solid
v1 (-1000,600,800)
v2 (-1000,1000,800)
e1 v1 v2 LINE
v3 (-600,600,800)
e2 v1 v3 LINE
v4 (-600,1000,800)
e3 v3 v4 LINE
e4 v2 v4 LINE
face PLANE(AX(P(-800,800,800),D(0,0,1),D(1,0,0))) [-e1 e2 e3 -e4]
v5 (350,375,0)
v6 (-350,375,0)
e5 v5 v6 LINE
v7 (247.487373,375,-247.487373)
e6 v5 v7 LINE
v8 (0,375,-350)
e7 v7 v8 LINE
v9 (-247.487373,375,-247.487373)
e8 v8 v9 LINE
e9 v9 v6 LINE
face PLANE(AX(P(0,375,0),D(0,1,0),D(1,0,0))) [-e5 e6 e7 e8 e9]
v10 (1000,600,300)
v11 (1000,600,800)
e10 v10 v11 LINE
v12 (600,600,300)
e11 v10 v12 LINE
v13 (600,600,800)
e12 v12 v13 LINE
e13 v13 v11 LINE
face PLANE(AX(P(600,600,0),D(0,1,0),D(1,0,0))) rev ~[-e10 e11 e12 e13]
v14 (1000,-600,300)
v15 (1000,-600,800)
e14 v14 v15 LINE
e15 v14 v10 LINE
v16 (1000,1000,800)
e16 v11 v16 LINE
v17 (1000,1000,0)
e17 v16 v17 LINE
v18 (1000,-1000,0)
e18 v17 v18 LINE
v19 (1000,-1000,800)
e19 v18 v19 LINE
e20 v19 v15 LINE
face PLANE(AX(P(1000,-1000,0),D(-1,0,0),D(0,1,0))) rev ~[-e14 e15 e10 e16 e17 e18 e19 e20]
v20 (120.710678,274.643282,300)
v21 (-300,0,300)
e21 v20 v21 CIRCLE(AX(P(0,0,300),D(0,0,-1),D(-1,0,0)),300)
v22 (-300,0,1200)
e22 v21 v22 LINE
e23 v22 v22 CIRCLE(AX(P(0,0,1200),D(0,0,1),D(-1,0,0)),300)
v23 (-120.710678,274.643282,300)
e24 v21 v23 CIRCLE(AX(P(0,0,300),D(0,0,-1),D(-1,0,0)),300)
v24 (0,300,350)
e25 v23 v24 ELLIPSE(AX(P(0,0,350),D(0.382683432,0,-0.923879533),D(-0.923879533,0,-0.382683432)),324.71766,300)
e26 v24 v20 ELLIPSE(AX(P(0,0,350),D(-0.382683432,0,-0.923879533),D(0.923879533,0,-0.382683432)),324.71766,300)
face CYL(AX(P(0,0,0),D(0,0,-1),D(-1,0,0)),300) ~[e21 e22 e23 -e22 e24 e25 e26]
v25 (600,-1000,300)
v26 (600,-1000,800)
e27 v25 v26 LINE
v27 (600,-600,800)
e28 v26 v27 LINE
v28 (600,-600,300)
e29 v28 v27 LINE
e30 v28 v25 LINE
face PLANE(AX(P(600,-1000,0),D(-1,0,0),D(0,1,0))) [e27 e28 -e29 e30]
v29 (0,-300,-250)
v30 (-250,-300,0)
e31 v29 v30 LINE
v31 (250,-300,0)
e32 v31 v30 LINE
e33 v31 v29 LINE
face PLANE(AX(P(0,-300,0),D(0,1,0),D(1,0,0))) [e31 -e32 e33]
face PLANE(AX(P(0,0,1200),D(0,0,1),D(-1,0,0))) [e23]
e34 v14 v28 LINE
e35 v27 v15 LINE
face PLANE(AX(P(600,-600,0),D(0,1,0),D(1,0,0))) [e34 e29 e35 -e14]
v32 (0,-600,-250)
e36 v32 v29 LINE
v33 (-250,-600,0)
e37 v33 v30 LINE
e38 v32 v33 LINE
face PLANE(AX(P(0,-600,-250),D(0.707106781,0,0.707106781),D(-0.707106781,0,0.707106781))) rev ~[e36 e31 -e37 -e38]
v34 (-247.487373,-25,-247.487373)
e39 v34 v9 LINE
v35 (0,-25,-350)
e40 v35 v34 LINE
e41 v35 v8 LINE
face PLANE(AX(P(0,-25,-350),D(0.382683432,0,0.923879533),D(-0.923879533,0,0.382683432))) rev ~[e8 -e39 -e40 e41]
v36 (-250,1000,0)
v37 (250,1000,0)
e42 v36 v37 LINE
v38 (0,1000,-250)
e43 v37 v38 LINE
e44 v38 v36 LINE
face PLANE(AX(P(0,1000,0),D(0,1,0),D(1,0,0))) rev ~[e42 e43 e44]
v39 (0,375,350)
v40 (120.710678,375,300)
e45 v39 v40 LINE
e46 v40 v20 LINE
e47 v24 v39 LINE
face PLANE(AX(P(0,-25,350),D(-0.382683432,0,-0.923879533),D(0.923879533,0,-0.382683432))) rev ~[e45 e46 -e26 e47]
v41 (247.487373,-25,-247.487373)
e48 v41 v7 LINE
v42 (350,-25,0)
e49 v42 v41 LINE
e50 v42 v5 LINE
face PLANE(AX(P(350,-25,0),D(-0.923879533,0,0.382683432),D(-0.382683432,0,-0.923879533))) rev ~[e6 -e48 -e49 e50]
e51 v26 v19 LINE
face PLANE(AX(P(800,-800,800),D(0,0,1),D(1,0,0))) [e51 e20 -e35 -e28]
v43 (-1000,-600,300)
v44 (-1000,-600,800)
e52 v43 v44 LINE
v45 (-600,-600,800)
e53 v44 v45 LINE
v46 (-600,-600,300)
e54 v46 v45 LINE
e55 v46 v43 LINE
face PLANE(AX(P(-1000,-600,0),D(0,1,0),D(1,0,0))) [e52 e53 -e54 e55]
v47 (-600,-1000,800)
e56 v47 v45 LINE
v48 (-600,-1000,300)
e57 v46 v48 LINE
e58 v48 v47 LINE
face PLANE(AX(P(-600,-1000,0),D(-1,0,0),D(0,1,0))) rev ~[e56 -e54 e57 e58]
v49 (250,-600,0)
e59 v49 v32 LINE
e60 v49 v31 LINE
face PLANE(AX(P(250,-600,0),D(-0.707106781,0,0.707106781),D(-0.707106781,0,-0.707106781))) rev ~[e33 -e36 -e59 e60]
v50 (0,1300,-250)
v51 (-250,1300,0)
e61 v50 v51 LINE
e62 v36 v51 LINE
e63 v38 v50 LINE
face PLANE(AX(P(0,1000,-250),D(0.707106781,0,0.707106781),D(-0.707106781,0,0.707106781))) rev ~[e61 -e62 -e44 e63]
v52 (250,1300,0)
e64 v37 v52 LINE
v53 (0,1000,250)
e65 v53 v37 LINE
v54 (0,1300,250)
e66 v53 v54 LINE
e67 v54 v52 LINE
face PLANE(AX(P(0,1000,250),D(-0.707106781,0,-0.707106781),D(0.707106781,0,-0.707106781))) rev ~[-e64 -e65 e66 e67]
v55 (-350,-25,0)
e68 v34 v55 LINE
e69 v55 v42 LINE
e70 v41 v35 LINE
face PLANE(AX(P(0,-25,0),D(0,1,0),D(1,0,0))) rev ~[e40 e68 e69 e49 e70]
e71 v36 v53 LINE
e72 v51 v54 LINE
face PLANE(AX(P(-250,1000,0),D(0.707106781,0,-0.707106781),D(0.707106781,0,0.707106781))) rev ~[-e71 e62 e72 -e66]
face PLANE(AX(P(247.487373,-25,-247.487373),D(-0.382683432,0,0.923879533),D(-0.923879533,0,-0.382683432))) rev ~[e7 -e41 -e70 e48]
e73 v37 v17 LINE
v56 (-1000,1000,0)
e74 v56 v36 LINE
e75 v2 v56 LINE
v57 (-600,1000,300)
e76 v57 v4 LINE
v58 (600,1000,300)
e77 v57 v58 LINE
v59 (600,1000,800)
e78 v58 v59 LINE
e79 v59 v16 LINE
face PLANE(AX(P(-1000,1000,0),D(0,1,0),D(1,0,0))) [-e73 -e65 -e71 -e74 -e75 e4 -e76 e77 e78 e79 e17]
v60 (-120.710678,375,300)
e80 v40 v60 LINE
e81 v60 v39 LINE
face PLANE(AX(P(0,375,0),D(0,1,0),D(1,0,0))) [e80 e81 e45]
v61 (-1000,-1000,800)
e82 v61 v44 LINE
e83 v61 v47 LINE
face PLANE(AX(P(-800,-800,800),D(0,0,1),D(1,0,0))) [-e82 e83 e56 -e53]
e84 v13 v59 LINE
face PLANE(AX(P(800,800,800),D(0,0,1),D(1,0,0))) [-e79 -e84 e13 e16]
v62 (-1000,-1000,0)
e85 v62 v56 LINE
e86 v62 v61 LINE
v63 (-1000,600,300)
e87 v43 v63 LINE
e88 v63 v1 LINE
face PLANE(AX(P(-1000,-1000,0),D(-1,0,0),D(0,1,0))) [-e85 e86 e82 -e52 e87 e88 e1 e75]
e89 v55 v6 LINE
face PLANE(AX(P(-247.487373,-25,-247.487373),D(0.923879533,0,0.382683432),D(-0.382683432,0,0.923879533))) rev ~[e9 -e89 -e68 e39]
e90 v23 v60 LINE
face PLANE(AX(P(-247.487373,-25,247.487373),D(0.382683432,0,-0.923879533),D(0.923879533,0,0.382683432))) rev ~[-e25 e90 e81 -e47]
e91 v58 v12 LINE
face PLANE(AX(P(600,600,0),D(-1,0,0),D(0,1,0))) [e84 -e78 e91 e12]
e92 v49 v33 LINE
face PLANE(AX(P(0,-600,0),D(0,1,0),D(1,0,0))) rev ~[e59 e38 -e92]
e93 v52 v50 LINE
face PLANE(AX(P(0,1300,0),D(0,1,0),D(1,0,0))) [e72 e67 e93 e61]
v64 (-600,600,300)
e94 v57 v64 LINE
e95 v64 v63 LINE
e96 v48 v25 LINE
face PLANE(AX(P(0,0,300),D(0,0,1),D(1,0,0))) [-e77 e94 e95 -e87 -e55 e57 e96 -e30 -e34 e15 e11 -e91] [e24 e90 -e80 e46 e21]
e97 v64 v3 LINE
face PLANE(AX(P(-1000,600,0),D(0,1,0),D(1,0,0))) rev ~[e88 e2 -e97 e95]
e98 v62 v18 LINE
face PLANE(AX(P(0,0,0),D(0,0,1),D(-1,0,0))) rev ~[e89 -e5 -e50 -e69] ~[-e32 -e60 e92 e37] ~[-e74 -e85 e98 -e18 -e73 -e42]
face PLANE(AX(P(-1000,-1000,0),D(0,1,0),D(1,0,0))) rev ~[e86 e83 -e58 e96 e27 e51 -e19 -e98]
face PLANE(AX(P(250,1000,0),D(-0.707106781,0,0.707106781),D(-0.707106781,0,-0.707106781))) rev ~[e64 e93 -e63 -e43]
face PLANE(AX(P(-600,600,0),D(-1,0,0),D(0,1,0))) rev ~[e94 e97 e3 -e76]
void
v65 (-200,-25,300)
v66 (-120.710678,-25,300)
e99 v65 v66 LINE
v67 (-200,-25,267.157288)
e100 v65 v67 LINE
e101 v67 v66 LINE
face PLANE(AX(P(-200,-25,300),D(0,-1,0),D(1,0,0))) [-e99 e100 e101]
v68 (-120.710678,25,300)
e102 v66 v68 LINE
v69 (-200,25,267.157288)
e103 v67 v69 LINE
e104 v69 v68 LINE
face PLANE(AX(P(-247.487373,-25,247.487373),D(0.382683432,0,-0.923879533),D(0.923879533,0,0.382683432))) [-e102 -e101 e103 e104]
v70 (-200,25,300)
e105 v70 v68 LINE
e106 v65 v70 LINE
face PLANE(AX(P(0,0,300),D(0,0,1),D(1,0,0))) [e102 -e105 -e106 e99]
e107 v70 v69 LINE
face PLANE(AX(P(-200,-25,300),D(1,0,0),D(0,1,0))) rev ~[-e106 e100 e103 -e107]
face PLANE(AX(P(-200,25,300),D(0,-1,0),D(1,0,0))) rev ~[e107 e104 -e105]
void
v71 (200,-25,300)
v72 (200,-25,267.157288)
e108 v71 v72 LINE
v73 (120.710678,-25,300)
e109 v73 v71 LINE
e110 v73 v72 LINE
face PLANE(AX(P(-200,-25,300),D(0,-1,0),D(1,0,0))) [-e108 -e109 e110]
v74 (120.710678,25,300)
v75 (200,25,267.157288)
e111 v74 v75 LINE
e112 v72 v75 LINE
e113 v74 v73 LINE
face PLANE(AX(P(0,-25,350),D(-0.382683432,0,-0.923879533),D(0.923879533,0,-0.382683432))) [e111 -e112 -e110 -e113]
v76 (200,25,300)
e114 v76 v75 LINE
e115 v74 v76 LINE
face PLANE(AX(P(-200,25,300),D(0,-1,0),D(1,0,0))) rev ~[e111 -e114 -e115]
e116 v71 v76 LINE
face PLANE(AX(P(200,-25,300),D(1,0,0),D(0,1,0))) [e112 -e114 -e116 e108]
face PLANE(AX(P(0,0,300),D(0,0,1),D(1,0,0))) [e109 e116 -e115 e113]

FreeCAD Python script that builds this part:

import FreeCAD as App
import Part
import Sketcher

V = App.Vector
Q = App.Units.Quantity


def add_polygon(sketch, points):
    """Adds a closed chain of lines whose ends are joined by coincident constraints."""
    first, n = sketch.GeometryCount, len(points)
    for a, b in zip(points, points[1:] + points[:1]):
        sketch.addGeometry(Part.LineSegment(App.Vector(*a, 0), App.Vector(*b, 0)), False)
    for i in range(n):
        sketch.addConstraint(Sketcher.Constraint("Coincident", first + i, 2, first + (i + 1) % n, 1))

doc = App.newDocument("Part")
body = doc.addObject("PartDesign::Body", "Body")

# Sketch on XY plane
sketch1 = body.newObject("Sketcher::SketchObject", "Sketch")
sketch1.AttachmentSupport = (doc.getObject("XY_Plane"), [""])
sketch1.MapMode = "FlatFace"
add_polygon(sketch1, [(-1000, 1000), (-1000, -1000), (1000, -1000), (1000, 1000)])  # lines 0-3
sketch1.addConstraint([
    Sketcher.Constraint("Vertical", 0),
    Sketcher.Constraint("Horizontal", 1),
    Sketcher.Constraint("Vertical", 2),
    Sketcher.Constraint("Horizontal", 3),
    Sketcher.Constraint("Symmetric", 0, 2, 2, 2, -1, 1),
    Sketcher.Constraint("Equal", 3, 0),
    Sketcher.Constraint("DistanceX", 1, 1, 1, 2, Q("2000 mm")),
])
pad1 = body.newObject("PartDesign::Pad", "Pad")
pad1.Profile = sketch1
pad1.Length = 300

# Sketch on XY plane
sketch2 = body.newObject("Sketcher::SketchObject", "Sketch001")
sketch2.AttachmentSupport = (doc.getObject("XY_Plane"), [""])
sketch2.MapMode = "FlatFace"
add_polygon(sketch2, [(-1000, -600), (-1000, -1000), (-600, -1000), (-600, -600)])  # lines 0-3
sketch2.addConstraint([
    Sketcher.Constraint("Vertical", 0),
    Sketcher.Constraint("Horizontal", 1),
    Sketcher.Constraint("Vertical", 2),
    Sketcher.Constraint("Horizontal", 3),
    Sketcher.Constraint("Equal", 3, 0),
    Sketcher.Constraint("DistanceX", 1, 1, 1, 2, Q("400 mm")),
    Sketcher.Constraint("DistanceX", 0, 2, -1, 1, Q("1000 mm")),
    Sketcher.Constraint("DistanceY", 0, 2, -1, 1, Q("1000 mm")),
])
pad2 = body.newObject("PartDesign::Pad", "Pad001")
pad2.Profile = sketch2
pad2.Length = 800

# Sketch on XY plane
sketch3 = body.newObject("Sketcher::SketchObject", "Sketch002")
sketch3.AttachmentSupport = (doc.getObject("XY_Plane"), [""])
sketch3.MapMode = "FlatFace"
add_polygon(sketch3, [(600, -600), (600, -1000), (1000, -1000), (1000, -600)])  # lines 0-3
sketch3.addConstraint([
    Sketcher.Constraint("Vertical", 0),
    Sketcher.Constraint("Horizontal", 1),
    Sketcher.Constraint("Vertical", 2),
    Sketcher.Constraint("Horizontal", 3),
    Sketcher.Constraint("Equal", 3, 0),
    Sketcher.Constraint("DistanceX", 1, 1, 1, 2, Q("400 mm")),
    Sketcher.Constraint("DistanceX", -1, 1, 0, 2, Q("600 mm")),
    Sketcher.Constraint("DistanceY", 0, 2, -1, 1, Q("1000 mm")),
])
pad3 = body.newObject("PartDesign::Pad", "Pad002")
pad3.Profile = sketch3
pad3.Length = 800

# Sketch on XY plane
sketch4 = body.newObject("Sketcher::SketchObject", "Sketch003")
sketch4.AttachmentSupport = (doc.getObject("XY_Plane"), [""])
sketch4.MapMode = "FlatFace"
add_polygon(sketch4, [(-1000, 1000), (-1000, 600), (-600, 600), (-600, 1000)])  # lines 0-3
sketch4.addConstraint([
    Sketcher.Constraint("Vertical", 0),
    Sketcher.Constraint("Horizontal", 1),
    Sketcher.Constraint("Vertical", 2),
    Sketcher.Constraint("Horizontal", 3),
    Sketcher.Constraint("Equal", 3, 0),
    Sketcher.Constraint("DistanceX", 1, 1, 1, 2, Q("400 mm")),
    Sketcher.Constraint("DistanceX", 0, 2, -1, 1, Q("1000 mm")),
    Sketcher.Constraint("DistanceY", -1, 1, 0, 2, Q("600 mm")),
])
pad4 = body.newObject("PartDesign::Pad", "Pad003")
pad4.Profile = sketch4
pad4.Length = 800

# Sketch on XY plane
sketch5 = body.newObject("Sketcher::SketchObject", "Sketch004")
sketch5.AttachmentSupport = (doc.getObject("XY_Plane"), [""])
sketch5.MapMode = "FlatFace"
add_polygon(sketch5, [(600, 1000), (600, 600), (1000, 600), (1000, 1000)])  # lines 0-3
sketch5.addConstraint([
    Sketcher.Constraint("Vertical", 0),
    Sketcher.Constraint("Horizontal", 1),
    Sketcher.Constraint("Vertical", 2),
    Sketcher.Constraint("Horizontal", 3),
    Sketcher.Constraint("Equal", 3, 0),
    Sketcher.Constraint("DistanceX", 1, 1, 1, 2, Q("400 mm")),
    Sketcher.Constraint("DistanceX", -1, 1, 0, 2, Q("600 mm")),
    Sketcher.Constraint("DistanceY", -1, 1, 0, 2, Q("600 mm")),
])
pad5 = body.newObject("PartDesign::Pad", "Pad004")
pad5.Profile = sketch5
pad5.Length = 800

# Sketch on XY plane
sketch6 = body.newObject("Sketcher::SketchObject", "Sketch005")
sketch6.AttachmentSupport = (doc.getObject("XY_Plane"), [""])
sketch6.MapMode = "FlatFace"
sketch6.addGeometry(Part.Circle(V(0, 0, 0), V(0, 0, 1), 300), False)
sketch6.addConstraint([
    Sketcher.Constraint("Coincident", 0, 3, -1, 1),
    Sketcher.Constraint("Diameter", 0, Q("600 mm")),
])
pad6 = body.newObject("PartDesign::Pad", "Pad005")
pad6.Profile = sketch6
pad6.Length = 1200

# Sketch on XY plane
sketch7 = body.newObject("Sketcher::SketchObject", "Sketch006")
sketch7.AttachmentSupport = (doc.getObject("XY_Plane"), [""])
sketch7.MapMode = "FlatFace"
sketch7.AttachmentOffset = App.Placement(V(0, 0, 300), App.Rotation())
add_polygon(sketch7, [(-200, 25), (-200, -25), (200, -25), (200, 25)])  # lines 0-3
sketch7.addConstraint([
    Sketcher.Constraint("Vertical", 0),
    Sketcher.Constraint("Horizontal", 1),
    Sketcher.Constraint("Vertical", 2),
    Sketcher.Constraint("Horizontal", 3),
    Sketcher.Constraint("Symmetric", 0, 2, 2, 2, -1, 1),
    Sketcher.Constraint("DistanceX", 1, 1, 1, 2, Q("400 mm")),
    Sketcher.Constraint("DistanceY", 0, 2, 0, 1, Q("50 mm")),
])
pocket1 = body.newObject("PartDesign::Pocket", "Pocket")
pocket1.Profile = sketch7
pocket1.Type = "ThroughAll"

# Sketch on XZ plane
sketch8 = body.newObject("Sketcher::SketchObject", "Sketch007")
sketch8.AttachmentSupport = (doc.getObject("XZ_Plane"), [""])
sketch8.MapMode = "FlatFace"
sketch8.AttachmentOffset = App.Placement(V(0, 0, 600), App.Rotation())
add_polygon(sketch8, [(250, 0), (0, -250), (-250, 0), (0, 250)])  # lines 0-3
sketch8.addConstraint([
    Sketcher.Constraint("Symmetric", 0, 2, 2, 2, -1, 1),
    Sketcher.Constraint("Symmetric", 1, 2, 3, 2, -1, 1),
    Sketcher.Constraint("PointOnObject", 0, 2, -2),
    Sketcher.Constraint("PointOnObject", 1, 2, -1),
    Sketcher.Constraint("Perpendicular", 0, 1),
    Sketcher.Constraint("DistanceY", 0, 2, -1, 1, Q("250 mm")),
])
pad7 = body.newObject("PartDesign::Pad", "Pad006")
pad7.Profile = sketch8
pad7.Length = 300
pad7.Reversed = True

# Sketch on XZ plane
sketch9 = body.newObject("Sketcher::SketchObject", "Sketch008")
sketch9.AttachmentSupport = (doc.getObject("XZ_Plane"), [""])
sketch9.MapMode = "FlatFace"
sketch9.AttachmentOffset = App.Placement(V(0, 0, 600), App.Rotation())
add_polygon(sketch9, [(250, 0), (0, -250), (-250, 0), (0, 250)])  # lines 0-3
sketch9.addConstraint([
    Sketcher.Constraint("Symmetric", 0, 2, 2, 2, -1, 1),
    Sketcher.Constraint("Symmetric", 1, 2, 3, 2, -1, 1),
    Sketcher.Constraint("PointOnObject", 0, 2, -2),
    Sketcher.Constraint("PointOnObject", 1, 2, -1),
    Sketcher.Constraint("Perpendicular", 0, 1),
    Sketcher.Constraint("DistanceY", 0, 2, -1, 1, Q("250 mm")),
])
pad8 = body.newObject("PartDesign::Pad", "Pad007")
pad8.Profile = sketch9
pad8.Length = 300
pad8.Reversed = True

# Sketch on XZ plane
sketch10 = body.newObject("Sketcher::SketchObject", "Sketch009")
sketch10.AttachmentSupport = (doc.getObject("XZ_Plane"), [""])
sketch10.MapMode = "FlatFace"
sketch10.AttachmentOffset = App.Placement(V(0, 0, -1000), App.Rotation())
add_polygon(sketch10, [(250, 0), (0, -250), (-250, 0), (0, 250)])  # lines 0-3
sketch10.addConstraint([
    Sketcher.Constraint("Symmetric", 0, 2, 2, 2, -1, 1),
    Sketcher.Constraint("Symmetric", 1, 2, 3, 2, -1, 1),
    Sketcher.Constraint("PointOnObject", 0, 2, -2),
    Sketcher.Constraint("PointOnObject", 1, 2, -1),
    Sketcher.Constraint("Perpendicular", 0, 1),
    Sketcher.Constraint("DistanceY", 0, 2, -1, 1, Q("250 mm")),
])
pad9 = body.newObject("PartDesign::Pad", "Pad008")
pad9.Profile = sketch10
pad9.Length = 300
pad9.Reversed = True

# Sketch on XZ plane
sketch11 = body.newObject("Sketcher::SketchObject", "Sketch010")
sketch11.AttachmentSupport = (doc.getObject("XZ_Plane"), [""])
sketch11.MapMode = "FlatFace"
sketch11.AttachmentOffset = App.Placement(V(0, 0, -1000), App.Rotation())
add_polygon(sketch11, [(250, 0), (0, -250), (-250, 0), (0, 250)])  # lines 0-3
sketch11.addConstraint([
    Sketcher.Constraint("Symmetric", 0, 2, 2, 2, -1, 1),
    Sketcher.Constraint("Symmetric", 1, 2, 3, 2, -1, 1),
    Sketcher.Constraint("PointOnObject", 0, 2, -2),
    Sketcher.Constraint("PointOnObject", 1, 2, -1),
    Sketcher.Constraint("Perpendicular", 0, 1),
    Sketcher.Constraint("DistanceY", 0, 2, -1, 1, Q("250 mm")),
])
pad10 = body.newObject("PartDesign::Pad", "Pad009")
pad10.Profile = sketch11
pad10.Length = 300
pad10.Reversed = True

# Sketch on XZ plane
sketch12 = body.newObject("Sketcher::SketchObject", "Sketch011")
sketch12.AttachmentSupport = (doc.getObject("XZ_Plane"), [""])
sketch12.MapMode = "FlatFace"
sketch12.AttachmentOffset = App.Placement(V(0, 0, 25), App.Rotation())
add_polygon(sketch12, [(350, 0), (247.487373, -247.487373), (0, -350), (-247.487373, -247.487373), (-350, 0), (-247.487373, 247.487373), (0, 350), (247.487373, 247.487373)])  # lines 0-7
sketch12.addConstraint([
    Sketcher.Constraint("Symmetric", 0, 2, 4, 2, -1, 1),
    Sketcher.Constraint("Symmetric", 1, 2, 5, 2, -1, 1),
    Sketcher.Constraint("Symmetric", 2, 2, 6, 2, -1, 1),
    Sketcher.Constraint("Symmetric", 3, 2, 7, 2, -1, 1),
    Sketcher.Constraint("Symmetric", 0, 2, 2, 2, -2),
    Sketcher.Constraint("PointOnObject", 1, 2, -2),
    Sketcher.Constraint("PointOnObject", 3, 2, -1),
    Sketcher.Constraint("Perpendicular", 0, 2),
    Sketcher.Constraint("Equal", 0, 1),
    Sketcher.Constraint("DistanceY", 1, 2, -1, 1, Q("350 mm")),
    Sketcher.Constraint("Angle", 0, Q("-112.5 deg")),
])
pad11 = body.newObject("PartDesign::Pad", "Pad010")
pad11.Profile = sketch12
pad11.Length = 400
pad11.Reversed = True

doc.recompute()
